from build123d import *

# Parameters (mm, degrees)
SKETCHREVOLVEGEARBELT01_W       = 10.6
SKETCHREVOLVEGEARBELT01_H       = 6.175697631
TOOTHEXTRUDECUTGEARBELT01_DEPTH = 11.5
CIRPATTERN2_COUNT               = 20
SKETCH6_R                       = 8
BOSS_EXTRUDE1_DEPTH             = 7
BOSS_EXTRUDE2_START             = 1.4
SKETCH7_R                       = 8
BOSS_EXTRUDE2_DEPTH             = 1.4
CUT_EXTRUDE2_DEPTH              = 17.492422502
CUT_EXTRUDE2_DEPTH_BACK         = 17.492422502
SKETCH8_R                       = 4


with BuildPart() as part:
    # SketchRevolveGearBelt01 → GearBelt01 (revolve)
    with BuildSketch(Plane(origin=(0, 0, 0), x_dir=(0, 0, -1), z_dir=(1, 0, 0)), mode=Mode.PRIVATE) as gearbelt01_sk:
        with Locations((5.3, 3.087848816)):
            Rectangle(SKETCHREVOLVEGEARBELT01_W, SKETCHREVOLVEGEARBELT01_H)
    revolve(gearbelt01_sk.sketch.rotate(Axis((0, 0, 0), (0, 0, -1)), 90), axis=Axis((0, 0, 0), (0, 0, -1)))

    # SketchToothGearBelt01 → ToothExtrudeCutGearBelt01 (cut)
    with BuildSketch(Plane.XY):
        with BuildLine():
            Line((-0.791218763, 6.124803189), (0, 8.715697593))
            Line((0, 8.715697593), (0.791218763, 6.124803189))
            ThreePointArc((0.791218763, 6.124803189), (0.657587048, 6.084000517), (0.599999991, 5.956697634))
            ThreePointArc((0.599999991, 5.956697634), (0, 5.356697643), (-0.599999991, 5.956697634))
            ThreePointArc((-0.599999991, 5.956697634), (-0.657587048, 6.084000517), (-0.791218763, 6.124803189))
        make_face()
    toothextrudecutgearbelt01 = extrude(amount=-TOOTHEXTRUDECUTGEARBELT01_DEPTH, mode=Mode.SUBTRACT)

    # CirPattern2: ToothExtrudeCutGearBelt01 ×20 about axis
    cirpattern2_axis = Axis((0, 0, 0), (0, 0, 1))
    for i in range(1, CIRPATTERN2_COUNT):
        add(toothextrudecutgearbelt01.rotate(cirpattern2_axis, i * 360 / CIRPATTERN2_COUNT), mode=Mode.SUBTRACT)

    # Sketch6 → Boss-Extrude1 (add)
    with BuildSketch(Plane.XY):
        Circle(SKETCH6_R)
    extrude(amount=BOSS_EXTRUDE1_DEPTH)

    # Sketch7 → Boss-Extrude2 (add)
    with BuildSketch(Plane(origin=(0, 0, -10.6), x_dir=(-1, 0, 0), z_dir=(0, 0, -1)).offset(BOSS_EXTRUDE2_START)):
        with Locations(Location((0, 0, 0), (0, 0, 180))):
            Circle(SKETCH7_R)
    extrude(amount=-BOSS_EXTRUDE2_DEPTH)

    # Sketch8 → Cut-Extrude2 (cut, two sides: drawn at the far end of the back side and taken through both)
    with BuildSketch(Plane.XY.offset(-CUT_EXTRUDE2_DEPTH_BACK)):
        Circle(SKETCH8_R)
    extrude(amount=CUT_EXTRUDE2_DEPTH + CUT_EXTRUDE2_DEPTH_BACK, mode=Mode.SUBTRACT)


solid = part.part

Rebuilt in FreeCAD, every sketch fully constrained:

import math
import FreeCAD as App
import Part
import Sketcher
from FreeCAD import Vector
Q = App.Units.Quantity


def add_polygon(sketch, points):
    """Adds a closed chain of lines whose ends are joined by coincident constraints."""
    first, n = sketch.GeometryCount, len(points)
    for a, b in zip(points, points[1:] + points[:1]):
        sketch.addGeometry(Part.LineSegment(App.Vector(*a, 0), App.Vector(*b, 0)), False)
    for i in range(n):
        sketch.addConstraint(Sketcher.Constraint("Coincident", first + i, 2, first + (i + 1) % n, 1))

doc = App.newDocument("Part")
body = doc.addObject("PartDesign::Body", "Body")

sketch1 = body.newObject("Sketcher::SketchObject", "Sketch")
sketch1.AttachmentSupport = (doc.getObject("YZ_Plane"), [""])
sketch1.MapMode = "FlatFace"
add_polygon(sketch1, [(6, 0), (0, 0), (0, -11), (6, -11)])
sketch1.addConstraint([
    Sketcher.Constraint("Horizontal", 0),
    Sketcher.Constraint("Vertical", 1),
    Sketcher.Constraint("Horizontal", 2),
    Sketcher.Constraint("Vertical", 3),
    Sketcher.Constraint("Coincident", 0, 2, -1, 1),
    Sketcher.Constraint("DistanceY", 1, 2, 1, 1, Q("10.6 mm")),
    Sketcher.Constraint("DistanceX", 0, 2, 0, 1, Q("6.175698 mm")),
])
revolution = body.newObject("PartDesign::Revolution", "Revolution")
revolution.Profile = sketch1
revolution.ReferenceAxis = (sketch1, ["V_Axis"])
revolution.Angle = 360

sketch2 = body.newObject("Sketcher::SketchObject", "Sketch001")
sketch2.AttachmentSupport = (doc.getObject("XY_Plane"), [""])
sketch2.MapMode = "FlatFace"
sketch2.addGeometry([
    Part.LineSegment(Vector(0, 8.72, 0), Vector(-0.79, 6.12, 0)),
    Part.ArcOfCircle(Part.Circle(Vector(-0.77, 5.96, 0), Vector(0, 0, 1), 0.17), math.radians(0), math.radians(97)),
    Part.ArcOfCircle(Part.Circle(Vector(0, 5.96, 0), Vector(0, 0, 1), 0.6), math.radians(180), math.radians(360)),
    Part.ArcOfCircle(Part.Circle(Vector(0.77, 5.96, 0), Vector(0, 0, 1), 0.17), math.radians(83), math.radians(180)),
    Part.LineSegment(Vector(0.79, 6.12, 0), Vector(0, 8.72, 0)),
], False)
sketch2.addConstraint([
    Sketcher.Constraint("Coincident", 0, 2, 1, 2),
    Sketcher.Constraint("Tangent", 1, 1, 2, 1),
    Sketcher.Constraint("Tangent", 2, 2, 3, 2),
    Sketcher.Constraint("Coincident", 3, 1, 4, 1),
    Sketcher.Constraint("Coincident", 4, 2, 0, 1),
    Sketcher.Constraint("Equal", 1, 3),
    Sketcher.Constraint("Symmetric", 1, 3, 3, 3, -2),
    Sketcher.Constraint("PointOnObject", 4, 2, -2),
    Sketcher.Constraint("Horizontal", 1, 3, 2, 3),
    Sketcher.Constraint("Horizontal", 0, 2, 3, 1),
    Sketcher.Constraint("Radius", 2, Q("0.6 mm")),
    Sketcher.Constraint("Radius", 1, Q("0.169502 mm")),
    Sketcher.Constraint("DistanceY", 2, 3, 4, 2, Q("2.759 mm")),
    Sketcher.Constraint("DistanceX", 0, 2, -1, 1, Q("0.791219 mm")),
    Sketcher.Constraint("DistanceY", -1, 1, 1, 3, Q("5.956698 mm")),
])
pocket1 = body.newObject("PartDesign::Pocket", "Pocket")
pocket1.Profile = sketch2
pocket1.Length = 11.5
doc.recompute()

polarpattern = body.newObject("PartDesign::PolarPattern", "PolarPattern")
polarpattern.Originals = [pocket1]
polarpattern.Axis = (doc.getObject("Z_Axis"), [""])
polarpattern.Angle = 360
polarpattern.Occurrences = 20
body.Tip = polarpattern

sketch3 = body.newObject("Sketcher::SketchObject", "Sketch002")
sketch3.AttachmentSupport = (doc.getObject("XY_Plane"), [""])
sketch3.MapMode = "FlatFace"
sketch3.addGeometry(Part.Circle(Vector(0, 0, 0), Vector(0, 0, 1), 8), False)
sketch3.addConstraint([
    Sketcher.Constraint("Coincident", 0, 3, -1, 1),
    Sketcher.Constraint("Diameter", 0, Q("16 mm")),
])
pad1 = body.newObject("PartDesign::Pad", "Pad")
pad1.Profile = sketch3
pad1.Length = 7

sketch4 = body.newObject("Sketcher::SketchObject", "Sketch003")
sketch4.AttachmentSupport = (doc.getObject("XY_Plane"), [""])
sketch4.MapMode = "FlatFace"
sketch4.AttachmentOffset = App.Placement(Vector(0, 0, -12), App.Rotation())
sketch4.addGeometry(Part.Circle(Vector(0, 0, 0), Vector(0, 0, 1), 8), False)
sketch4.addConstraint([
    Sketcher.Constraint("Coincident", 0, 3, -1, 1),
    Sketcher.Constraint("Diameter", 0, Q("16 mm")),
])
pad2 = body.newObject("PartDesign::Pad", "Pad001")
pad2.Profile = sketch4
pad2.Length = 1.4

sketch5 = body.newObject("Sketcher::SketchObject", "Sketch004")
sketch5.AttachmentSupport = (doc.getObject("XY_Plane"), [""])
sketch5.MapMode = "FlatFace"
sketch5.addGeometry(Part.Circle(Vector(0, 0, 0), Vector(0, 0, 1), 4), False)
sketch5.addConstraint([
    Sketcher.Constraint("Coincident", 0, 3, -1, 1),
    Sketcher.Constraint("Diameter", 0, Q("8 mm")),
])
pocket2 = body.newObject("PartDesign::Pocket", "Pocket001")
pocket2.Profile = sketch5
pocket2.Type = "ThroughAll"
pocket2.Midplane = True

doc.recompute()
